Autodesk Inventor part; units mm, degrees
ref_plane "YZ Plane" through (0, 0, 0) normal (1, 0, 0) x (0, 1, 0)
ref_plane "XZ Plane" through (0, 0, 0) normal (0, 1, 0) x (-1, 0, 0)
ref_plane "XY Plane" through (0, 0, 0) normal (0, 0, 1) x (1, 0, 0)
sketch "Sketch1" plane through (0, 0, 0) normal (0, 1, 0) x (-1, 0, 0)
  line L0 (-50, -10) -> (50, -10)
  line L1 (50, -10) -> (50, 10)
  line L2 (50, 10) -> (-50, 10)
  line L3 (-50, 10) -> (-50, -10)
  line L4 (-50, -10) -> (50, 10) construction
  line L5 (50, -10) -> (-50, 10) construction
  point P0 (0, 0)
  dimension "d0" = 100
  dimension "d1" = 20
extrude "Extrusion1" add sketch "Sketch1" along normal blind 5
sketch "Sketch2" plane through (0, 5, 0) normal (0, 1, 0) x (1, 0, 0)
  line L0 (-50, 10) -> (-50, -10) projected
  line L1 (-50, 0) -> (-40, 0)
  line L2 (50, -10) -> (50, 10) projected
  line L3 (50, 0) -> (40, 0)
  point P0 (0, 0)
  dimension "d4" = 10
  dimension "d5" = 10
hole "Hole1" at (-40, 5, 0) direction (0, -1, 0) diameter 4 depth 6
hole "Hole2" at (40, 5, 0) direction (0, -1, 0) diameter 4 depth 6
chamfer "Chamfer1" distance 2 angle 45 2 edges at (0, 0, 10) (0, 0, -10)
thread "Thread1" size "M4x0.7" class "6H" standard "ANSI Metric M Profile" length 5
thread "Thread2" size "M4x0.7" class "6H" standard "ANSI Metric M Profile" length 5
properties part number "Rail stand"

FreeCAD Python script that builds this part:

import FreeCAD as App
import Part
import Sketcher

V = App.Vector


def edges_at(feature, points):
    """Names of the edges that pass closest to the given points."""
    edges = feature.Shape.Edges
    near = lambda p: min(range(len(edges)), key=lambda i: edges[i].distToShape(Part.Vertex(*p))[0])
    return sorted({f"Edge{near(p) + 1}" for p in points})

doc = App.newDocument("Part")
body = doc.addObject("PartDesign::Body", "Body")

# Sketch on XZ plane
sketch1 = doc.addObject("Sketcher::SketchObject", "Sketch")
body.addObject(sketch1)
sketch1.AttachmentSupport = (doc.XZ_Plane, [""])
sketch1.MapMode = "FlatFace"
sketch1.addGeometry([
    Part.LineSegment(V(50, 10, 0), V(50, -10, 0)),
    Part.LineSegment(V(50, -10, 0), V(-50, -10, 0)),
    Part.LineSegment(V(-50, -10, 0), V(-50, 10, 0)),
    Part.LineSegment(V(-50, 10, 0), V(50, 10, 0)),
], False)
sketch1.addConstraint([
    Sketcher.Constraint("Coincident", 0, 2, 1, 1),
    Sketcher.Constraint("Coincident", 1, 2, 2, 1),
    Sketcher.Constraint("Coincident", 2, 2, 3, 1),
    Sketcher.Constraint("Coincident", 3, 2, 0, 1),
    Sketcher.Constraint("Vertical", 0),
    Sketcher.Constraint("Horizontal", 1),
    Sketcher.Constraint("Vertical", 2),
    Sketcher.Constraint("Horizontal", 3),
    Sketcher.Constraint("Symmetric", 0, 2, 2, 2, -1, 1),
    Sketcher.Constraint("DistanceX", 1, 2, 1, 1, 100.0),
    Sketcher.Constraint("DistanceY", 0, 2, 0, 1, 20.0),
])
pad1 = doc.addObject("PartDesign::Pad", "Pad")
body.addObject(pad1)
pad1.Profile = sketch1
pad1.Length = 5
pad1.Reversed = True

# Sketch on XZ plane
sketch2 = doc.addObject("Sketcher::SketchObject", "Sketch001")
body.addObject(sketch2)
sketch2.AttachmentSupport = (doc.XZ_Plane, [""])
sketch2.MapMode = "FlatFace"
sketch2.AttachmentOffset = App.Placement(V(0, 0, -5), App.Rotation())
sketch2.addGeometry(Part.Circle(V(-40, 0, 0), V(0, 0, 1), 2), False)
sketch2.addConstraint([
    Sketcher.Constraint("PointOnObject", 0, 3, -1),
    Sketcher.Constraint("Diameter", 0, 4.0),
    Sketcher.Constraint("DistanceX", 0, 3, -1, 1, 40.0),
])
doc.recompute()
hole = doc.addObject("PartDesign::Hole", "Hole")
body.addObject(hole)
hole.Profile = sketch2
hole.ThreadType = "None"
hole.Diameter = 4
hole.DepthType = "Dimension"
hole.Depth = 6
hole.DrillPoint = "Flat"
hole.Reversed = True

# Sketch on XZ plane
sketch3 = doc.addObject("Sketcher::SketchObject", "Sketch002")
body.addObject(sketch3)
sketch3.AttachmentSupport = (doc.XZ_Plane, [""])
sketch3.MapMode = "FlatFace"
sketch3.AttachmentOffset = App.Placement(V(0, 0, -5), App.Rotation())
sketch3.addGeometry(Part.Circle(V(40, 0, 0), V(0, 0, 1), 2), False)
sketch3.addConstraint([
    Sketcher.Constraint("PointOnObject", 0, 3, -1),
    Sketcher.Constraint("Diameter", 0, 4.0),
    Sketcher.Constraint("DistanceX", -1, 1, 0, 3, 40.0),
])
doc.recompute()
hole2 = doc.addObject("PartDesign::Hole", "Hole001")
body.addObject(hole2)
hole2.Profile = sketch3
hole2.ThreadType = "None"
hole2.Diameter = 4
hole2.DepthType = "Dimension"
hole2.Depth = 6
hole2.DrillPoint = "Flat"
hole2.Reversed = True
doc.recompute()

chamfer = doc.addObject("PartDesign::Chamfer", "Chamfer")
body.addObject(chamfer)
chamfer.Base = (hole2, edges_at(hole2, [(0, 0, 10), (0, 0, -10)]))
chamfer.Size = 2

doc.recompute()
